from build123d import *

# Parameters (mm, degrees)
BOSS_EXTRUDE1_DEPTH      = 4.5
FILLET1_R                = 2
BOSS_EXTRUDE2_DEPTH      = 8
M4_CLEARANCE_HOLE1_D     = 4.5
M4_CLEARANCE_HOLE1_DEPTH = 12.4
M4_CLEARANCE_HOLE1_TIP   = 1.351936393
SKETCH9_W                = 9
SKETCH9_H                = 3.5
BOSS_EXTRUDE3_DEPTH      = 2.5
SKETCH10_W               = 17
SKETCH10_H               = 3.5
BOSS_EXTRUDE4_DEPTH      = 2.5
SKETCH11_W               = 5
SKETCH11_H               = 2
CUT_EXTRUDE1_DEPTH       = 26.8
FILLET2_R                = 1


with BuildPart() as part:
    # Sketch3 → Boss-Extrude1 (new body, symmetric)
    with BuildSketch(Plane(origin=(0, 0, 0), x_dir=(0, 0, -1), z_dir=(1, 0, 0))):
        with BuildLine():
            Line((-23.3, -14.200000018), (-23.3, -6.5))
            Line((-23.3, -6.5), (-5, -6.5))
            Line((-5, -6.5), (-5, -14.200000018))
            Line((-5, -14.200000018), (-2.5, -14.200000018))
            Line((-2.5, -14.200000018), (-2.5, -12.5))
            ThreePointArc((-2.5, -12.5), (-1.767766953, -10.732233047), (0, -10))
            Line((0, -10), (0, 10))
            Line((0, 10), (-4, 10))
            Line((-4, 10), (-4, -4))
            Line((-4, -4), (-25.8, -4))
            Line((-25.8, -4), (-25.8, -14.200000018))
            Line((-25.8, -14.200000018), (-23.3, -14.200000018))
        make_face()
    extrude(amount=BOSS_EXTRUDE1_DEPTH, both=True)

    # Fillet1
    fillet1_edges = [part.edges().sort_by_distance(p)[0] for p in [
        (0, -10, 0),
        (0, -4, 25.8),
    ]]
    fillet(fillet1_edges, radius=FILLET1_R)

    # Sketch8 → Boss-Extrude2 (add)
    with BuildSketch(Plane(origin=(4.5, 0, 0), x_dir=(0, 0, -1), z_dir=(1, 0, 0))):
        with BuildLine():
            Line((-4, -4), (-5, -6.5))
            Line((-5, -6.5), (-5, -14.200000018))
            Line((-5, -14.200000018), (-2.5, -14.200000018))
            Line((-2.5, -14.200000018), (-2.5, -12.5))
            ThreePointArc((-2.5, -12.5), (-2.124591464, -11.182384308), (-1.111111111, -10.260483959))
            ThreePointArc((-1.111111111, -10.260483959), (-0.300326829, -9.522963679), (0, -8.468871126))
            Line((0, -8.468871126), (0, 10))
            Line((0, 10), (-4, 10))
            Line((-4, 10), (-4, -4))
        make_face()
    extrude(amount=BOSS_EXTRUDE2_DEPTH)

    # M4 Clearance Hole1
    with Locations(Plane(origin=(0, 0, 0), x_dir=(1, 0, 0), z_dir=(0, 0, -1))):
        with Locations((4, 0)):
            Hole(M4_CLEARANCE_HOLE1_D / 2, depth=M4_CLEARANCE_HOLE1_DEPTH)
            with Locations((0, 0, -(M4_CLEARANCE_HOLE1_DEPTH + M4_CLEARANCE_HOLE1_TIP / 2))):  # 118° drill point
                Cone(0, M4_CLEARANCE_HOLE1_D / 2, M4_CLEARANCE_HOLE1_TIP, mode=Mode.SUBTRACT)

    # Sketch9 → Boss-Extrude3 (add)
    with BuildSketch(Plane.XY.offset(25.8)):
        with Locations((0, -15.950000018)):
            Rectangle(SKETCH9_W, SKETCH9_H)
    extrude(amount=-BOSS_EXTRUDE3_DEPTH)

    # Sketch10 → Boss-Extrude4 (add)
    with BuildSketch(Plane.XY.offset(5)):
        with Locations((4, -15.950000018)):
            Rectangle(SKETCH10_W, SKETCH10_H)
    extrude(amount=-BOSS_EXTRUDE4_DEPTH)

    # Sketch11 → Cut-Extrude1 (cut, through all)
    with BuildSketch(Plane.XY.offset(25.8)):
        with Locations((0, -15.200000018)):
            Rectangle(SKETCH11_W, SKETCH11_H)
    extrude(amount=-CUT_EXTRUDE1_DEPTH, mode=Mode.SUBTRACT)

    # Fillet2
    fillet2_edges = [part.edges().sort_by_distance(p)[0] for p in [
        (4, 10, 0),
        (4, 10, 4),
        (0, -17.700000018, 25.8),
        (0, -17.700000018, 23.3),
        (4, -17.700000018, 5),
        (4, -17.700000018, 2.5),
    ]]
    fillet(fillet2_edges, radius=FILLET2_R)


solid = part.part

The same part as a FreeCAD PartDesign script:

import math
import FreeCAD as App
import Part
import Sketcher
Q = App.Units.Quantity


def edges_at(feature, points):
    """Names of the edges that pass closest to the given points."""
    edges = feature.Shape.Edges
    near = lambda p: min(range(len(edges)), key=lambda i: edges[i].distToShape(Part.Vertex(*p))[0])
    return sorted({f"Edge{near(p) + 1}" for p in points})

doc = App.newDocument("Part")
params = doc.addObject("Spreadsheet::Sheet", "Params")
for row, (alias, value) in enumerate([
    ("sketch1_radius", "2.5 mm"),
    ("sketch1_width", "20 mm"),
    ("sketch1_width2", "14 mm"),
    ("sketch1_height", "4 mm"),
    ("sketch1_width3", "7.7 mm"),
    ("pad1_length", "9 mm"),
    ("fillet_radius", "2 mm"),
    ("sketch2_radius", "2 mm"),
    ("sketch2_radius2", "2.5 mm"),
    ("sketch2_width", "14 mm"),
    ("sketch2_height", "4 mm"),
    ("sketch2_width2", "7.7 mm"),
    ("pad2_length", "8 mm"),
    ("sketch3_diameter", "4.5 mm"),
    ("hole_diameter", "4.5 mm"),
    ("hole_depth", "12.4 mm"),
    ("sketch4_width", "9 mm"),
    ("sketch4_height", "3.5 mm"),
    ("pad3_length", "2.5 mm"),
    ("sketch5_width", "17 mm"),
    ("sketch5_height", "3.5 mm"),
    ("pad4_length", "2.5 mm"),
    ("sketch6_width", "5 mm"),
    ("sketch6_height", "2 mm"),
    ("fillet2_radius", "1 mm"),
], start=1):
    params.set(f"A{row}", alias)
    params.set(f"B{row}", "=" + value)
    params.setAlias(f"B{row}", alias)

body = doc.addObject("PartDesign::Body", "Body")

# Sketch on YZ plane
sketch1 = doc.addObject("Sketcher::SketchObject", "Sketch")
body.addObject(sketch1)
sketch1.AttachmentSupport = (doc.YZ_Plane, [""])
sketch1.MapMode = "FlatFace"
sketch1.addGeometry(Part.LineSegment(App.Vector(-14.2, 23.3, 0), App.Vector(-6.5, 23.3, 0)), False)
sketch1.addGeometry(Part.LineSegment(App.Vector(-6.5, 23.3, 0), App.Vector(-6.5, 5, 0)), False)
sketch1.addGeometry(Part.LineSegment(App.Vector(-6.5, 5, 0), App.Vector(-14.2, 5, 0)), False)
sketch1.addGeometry(Part.LineSegment(App.Vector(-14.2, 5, 0), App.Vector(-14.2, 2.5, 0)), False)
sketch1.addGeometry(Part.LineSegment(App.Vector(-14.2, 2.5, 0), App.Vector(-12.5, 2.5, 0)), False)
sketch1.addGeometry(Part.ArcOfCircle(Part.Circle(App.Vector(-12.5, 0, 0), App.Vector(0, 0, 1), 2.5), math.radians(0), math.radians(90)), False)
sketch1.addGeometry(Part.LineSegment(App.Vector(-10, 0, 0), App.Vector(10, 0, 0)), False)
sketch1.addGeometry(Part.LineSegment(App.Vector(10, 0, 0), App.Vector(10, 4, 0)), False)
sketch1.addGeometry(Part.LineSegment(App.Vector(10, 4, 0), App.Vector(-4, 4, 0)), False)
sketch1.addGeometry(Part.LineSegment(App.Vector(-4, 4, 0), App.Vector(-4, 25.8, 0)), False)
sketch1.addGeometry(Part.LineSegment(App.Vector(-4, 25.8, 0), App.Vector(-14.2, 25.8, 0)), False)
sketch1.addGeometry(Part.LineSegment(App.Vector(-14.2, 25.8, 0), App.Vector(-14.2, 23.3, 0)), False)
sketch1.addConstraint(Sketcher.Constraint("Coincident", 0, 2, 1, 1))
sketch1.addConstraint(Sketcher.Constraint("Coincident", 1, 2, 2, 1))
sketch1.addConstraint(Sketcher.Constraint("Coincident", 2, 2, 3, 1))
sketch1.addConstraint(Sketcher.Constraint("Coincident", 3, 2, 4, 1))
sketch1.addConstraint(Sketcher.Constraint("Tangent", 4, 2, 5, 2))
sketch1.addConstraint(Sketcher.Constraint("Coincident", 5, 1, 6, 1))
sketch1.addConstraint(Sketcher.Constraint("Coincident", 6, 2, 7, 1))
sketch1.addConstraint(Sketcher.Constraint("Coincident", 7, 2, 8, 1))
sketch1.addConstraint(Sketcher.Constraint("Coincident", 8, 2, 9, 1))
sketch1.addConstraint(Sketcher.Constraint("Coincident", 9, 2, 10, 1))
sketch1.addConstraint(Sketcher.Constraint("Coincident", 10, 2, 11, 1))
sketch1.addConstraint(Sketcher.Constraint("Coincident", 11, 2, 0, 1))
sketch1.addConstraint(Sketcher.Constraint("Horizontal", 0))
sketch1.addConstraint(Sketcher.Constraint("Vertical", 1))
sketch1.addConstraint(Sketcher.Constraint("Horizontal", 2))
sketch1.addConstraint(Sketcher.Constraint("Vertical", 3))
sketch1.addConstraint(Sketcher.Constraint("Horizontal", 4))
sketch1.addConstraint(Sketcher.Constraint("Horizontal", 6))
sketch1.addConstraint(Sketcher.Constraint("Vertical", 7))
sketch1.addConstraint(Sketcher.Constraint("Horizontal", 8))
sketch1.addConstraint(Sketcher.Constraint("Vertical", 9))
sketch1.addConstraint(Sketcher.Constraint("Horizontal", 10))
sketch1.addConstraint(Sketcher.Constraint("Vertical", 11))
sketch1.addConstraint(Sketcher.Constraint("Symmetric", 5, 1, 6, 2, -1, 1))
sketch1.addConstraint(Sketcher.Constraint("PointOnObject", 5, 3, -1))
sketch1.addConstraint(Sketcher.Constraint("Vertical", 3, 2, 10, 2))
sketch1.addConstraint(Sketcher.Constraint("Equal", 3, 11))
sketch1.addConstraint(Sketcher.Constraint("Radius", 5, Q("2.5 mm")))
sketch1.addConstraint(Sketcher.Constraint("DistanceX", 6, 1, 6, 2, Q("20 mm")))
sketch1.addConstraint(Sketcher.Constraint("DistanceX", 8, 2, 8, 1, Q("14 mm")))
sketch1.addConstraint(Sketcher.Constraint("DistanceY", 7, 1, 7, 2, Q("4 mm")))
sketch1.addConstraint(Sketcher.Constraint("DistanceX", 0, 1, 0, 2, Q("7.7 mm")))
sketch1.addConstraint(Sketcher.Constraint("DistanceX", 4, 1, 4, 2, Q("1.7 mm")))
sketch1.addConstraint(Sketcher.Constraint("DistanceY", 1, 2, 1, 1, Q("18.3 mm")))
sketch1.addConstraint(Sketcher.Constraint("DistanceY", 3, 2, 3, 1, Q("2.5 mm")))
sketch1.setExpression("Constraints[27]", "Params.sketch1_radius")
sketch1.setExpression("Constraints[28]", "Params.sketch1_width")
sketch1.setExpression("Constraints[29]", "Params.sketch1_width2")
sketch1.setExpression("Constraints[30]", "Params.sketch1_height")
sketch1.setExpression("Constraints[31]", "Params.sketch1_width3")
pad1 = doc.addObject("PartDesign::Pad", "Pad")
body.addObject(pad1)
pad1.Profile = sketch1
pad1.setExpression("Length", "Params.pad1_length")
pad1.Midplane = True
doc.recompute()

fillet = doc.addObject("PartDesign::Fillet", "Fillet")
body.addObject(fillet)
fillet.Base = (pad1, edges_at(pad1, [(0, -10, 0), (0, -4, 25.8)]))
fillet.setExpression("Radius", "Params.fillet_radius")

# Sketch on YZ plane
sketch2 = doc.addObject("Sketcher::SketchObject", "Sketch001")
body.addObject(sketch2)
sketch2.AttachmentSupport = (doc.YZ_Plane, [""])
sketch2.MapMode = "FlatFace"
sketch2.AttachmentOffset = App.Placement(App.Vector(0, 0, 4.5), App.Rotation())
sketch2.addGeometry(Part.LineSegment(App.Vector(-4, 4, 0), App.Vector(-6.5, 5, 0)), False)
sketch2.addGeometry(Part.LineSegment(App.Vector(-6.5, 5, 0), App.Vector(-14.2, 5, 0)), False)
sketch2.addGeometry(Part.LineSegment(App.Vector(-14.2, 5, 0), App.Vector(-14.2, 2.5, 0)), False)
sketch2.addGeometry(Part.LineSegment(App.Vector(-14.2, 2.5, 0), App.Vector(-12.5, 2.5, 0)), False)
sketch2.addGeometry(Part.ArcOfCircle(Part.Circle(App.Vector(-12.5, 0, 0), App.Vector(0, 0, 1), 2.5), math.radians(26.3878), math.radians(90)), False)
sketch2.addGeometry(Part.ArcOfCircle(Part.Circle(App.Vector(-8.468871, 2, 0), App.Vector(0, 0, 1), 2), math.radians(-153.6122), math.radians(-90)), False)
sketch2.addGeometry(Part.LineSegment(App.Vector(-8.468871, 0, 0), App.Vector(10, 0, 0)), False)
sketch2.addGeometry(Part.LineSegment(App.Vector(10, 0, 0), App.Vector(10, 4, 0)), False)
sketch2.addGeometry(Part.LineSegment(App.Vector(10, 4, 0), App.Vector(-4, 4, 0)), False)
sketch2.addConstraint(Sketcher.Constraint("Coincident", 0, 2, 1, 1))
sketch2.addConstraint(Sketcher.Constraint("Coincident", 1, 2, 2, 1))
sketch2.addConstraint(Sketcher.Constraint("Coincident", 2, 2, 3, 1))
sketch2.addConstraint(Sketcher.Constraint("Tangent", 3, 2, 4, 2))
sketch2.addConstraint(Sketcher.Constraint("Tangent", 4, 1, 5, 1))
sketch2.addConstraint(Sketcher.Constraint("Tangent", 5, 2, 6, 1))
sketch2.addConstraint(Sketcher.Constraint("Coincident", 6, 2, 7, 1))
sketch2.addConstraint(Sketcher.Constraint("Coincident", 7, 2, 8, 1))
sketch2.addConstraint(Sketcher.Constraint("Coincident", 8, 2, 0, 1))
sketch2.addConstraint(Sketcher.Constraint("Horizontal", 1))
sketch2.addConstraint(Sketcher.Constraint("Vertical", 2))
sketch2.addConstraint(Sketcher.Constraint("Horizontal", 3))
sketch2.addConstraint(Sketcher.Constraint("Horizontal", 6))
sketch2.addConstraint(Sketcher.Constraint("Vertical", 7))
sketch2.addConstraint(Sketcher.Constraint("Horizontal", 8))
sketch2.addConstraint(Sketcher.Constraint("PointOnObject", 4, 3, -1))
sketch2.addConstraint(Sketcher.Constraint("PointOnObject", 5, 2, -1))
sketch2.addConstraint(Sketcher.Constraint("Radius", 5, Q("2 mm")))
sketch2.addConstraint(Sketcher.Constraint("Radius", 4, Q("2.5 mm")))
sketch2.addConstraint(Sketcher.Constraint("DistanceX", 8, 2, 8, 1, Q("14 mm")))
sketch2.addConstraint(Sketcher.Constraint("DistanceY", 7, 1, 7, 2, Q("4 mm")))
sketch2.addConstraint(Sketcher.Constraint("DistanceX", 1, 2, 1, 1, Q("7.7 mm")))
sketch2.addConstraint(Sketcher.Constraint("DistanceX", 3, 1, 3, 2, Q("1.7 mm")))
sketch2.addConstraint(Sketcher.Constraint("DistanceY", 2, 2, 2, 1, Q("2.5 mm")))
sketch2.addConstraint(Sketcher.Constraint("DistanceX", -1, 1, 6, 2, Q("10 mm")))
sketch2.addConstraint(Sketcher.Constraint("DistanceX", 4, 3, -1, 1, Q("12.5 mm")))
sketch2.setExpression("Constraints[17]", "Params.sketch2_radius")
sketch2.setExpression("Constraints[18]", "Params.sketch2_radius2")
sketch2.setExpression("Constraints[19]", "Params.sketch2_width")
sketch2.setExpression("Constraints[20]", "Params.sketch2_height")
sketch2.setExpression("Constraints[21]", "Params.sketch2_width2")
pad2 = doc.addObject("PartDesign::Pad", "Pad001")
body.addObject(pad2)
pad2.Profile = sketch2
pad2.setExpression("Length", "Params.pad2_length")

# Sketch on XY plane
sketch3 = doc.addObject("Sketcher::SketchObject", "Sketch002")
body.addObject(sketch3)
sketch3.AttachmentSupport = (doc.XY_Plane, [""])
sketch3.MapMode = "FlatFace"
sketch3.addGeometry(Part.Circle(App.Vector(4, 0, 0), App.Vector(0, 0, 1), 2.25), False)
sketch3.addConstraint(Sketcher.Constraint("PointOnObject", 0, 3, -1))
sketch3.addConstraint(Sketcher.Constraint("Diameter", 0, Q("4.5 mm")))
sketch3.addConstraint(Sketcher.Constraint("DistanceX", -1, 1, 0, 3, Q("4 mm")))
sketch3.setExpression("Constraints[1]", "Params.sketch3_diameter")
doc.recompute()
hole = doc.addObject("PartDesign::Hole", "Hole")
body.addObject(hole)
hole.Profile = sketch3
hole.ThreadType = "None"
hole.setExpression("Diameter", "Params.hole_diameter")
hole.DepthType = "Dimension"
hole.setExpression("Depth", "Params.hole_depth")
hole.DrillPoint = "Angled"
hole.DrillPointAngle = 118
hole.Reversed = True

# Sketch on XY plane
sketch4 = doc.addObject("Sketcher::SketchObject", "Sketch003")
body.addObject(sketch4)
sketch4.AttachmentSupport = (doc.XY_Plane, [""])
sketch4.MapMode = "FlatFace"
sketch4.AttachmentOffset = App.Placement(App.Vector(0, 0, 25.8), App.Rotation())
sketch4.addGeometry(Part.LineSegment(App.Vector(-4.5, -14.2, 0), App.Vector(-4.5, -17.7, 0)), False)
sketch4.addGeometry(Part.LineSegment(App.Vector(-4.5, -17.7, 0), App.Vector(4.5, -17.7, 0)), False)
sketch4.addGeometry(Part.LineSegment(App.Vector(4.5, -17.7, 0), App.Vector(4.5, -14.2, 0)), False)
sketch4.addGeometry(Part.LineSegment(App.Vector(4.5, -14.2, 0), App.Vector(-4.5, -14.2, 0)), False)
sketch4.addConstraint(Sketcher.Constraint("Coincident", 0, 2, 1, 1))
sketch4.addConstraint(Sketcher.Constraint("Coincident", 1, 2, 2, 1))
sketch4.addConstraint(Sketcher.Constraint("Coincident", 2, 2, 3, 1))
sketch4.addConstraint(Sketcher.Constraint("Coincident", 3, 2, 0, 1))
sketch4.addConstraint(Sketcher.Constraint("Vertical", 0))
sketch4.addConstraint(Sketcher.Constraint("Horizontal", 1))
sketch4.addConstraint(Sketcher.Constraint("Vertical", 2))
sketch4.addConstraint(Sketcher.Constraint("Horizontal", 3))
sketch4.addConstraint(Sketcher.Constraint("DistanceX", 1, 1, 1, 2, Q("9 mm")))
sketch4.addConstraint(Sketcher.Constraint("DistanceY", 0, 2, 0, 1, Q("3.5 mm")))
sketch4.addConstraint(Sketcher.Constraint("DistanceX", 0, 2, -1, 1, Q("4.5 mm")))
sketch4.addConstraint(Sketcher.Constraint("DistanceY", 0, 2, -1, 1, Q("17.7 mm")))
sketch4.setExpression("Constraints[8]", "Params.sketch4_width")
sketch4.setExpression("Constraints[9]", "Params.sketch4_height")
pad3 = doc.addObject("PartDesign::Pad", "Pad002")
body.addObject(pad3)
pad3.Profile = sketch4
pad3.setExpression("Length", "Params.pad3_length")
pad3.Reversed = True

# Sketch on XY plane
sketch5 = doc.addObject("Sketcher::SketchObject", "Sketch004")
body.addObject(sketch5)
sketch5.AttachmentSupport = (doc.XY_Plane, [""])
sketch5.MapMode = "FlatFace"
sketch5.AttachmentOffset = App.Placement(App.Vector(0, 0, 5), App.Rotation())
sketch5.addGeometry(Part.LineSegment(App.Vector(-4.5, -14.2, 0), App.Vector(-4.5, -17.7, 0)), False)
sketch5.addGeometry(Part.LineSegment(App.Vector(-4.5, -17.7, 0), App.Vector(12.5, -17.7, 0)), False)
sketch5.addGeometry(Part.LineSegment(App.Vector(12.5, -17.7, 0), App.Vector(12.5, -14.2, 0)), False)
sketch5.addGeometry(Part.LineSegment(App.Vector(12.5, -14.2, 0), App.Vector(-4.5, -14.2, 0)), False)
sketch5.addConstraint(Sketcher.Constraint("Coincident", 0, 2, 1, 1))
sketch5.addConstraint(Sketcher.Constraint("Coincident", 1, 2, 2, 1))
sketch5.addConstraint(Sketcher.Constraint("Coincident", 2, 2, 3, 1))
sketch5.addConstraint(Sketcher.Constraint("Coincident", 3, 2, 0, 1))
sketch5.addConstraint(Sketcher.Constraint("Vertical", 0))
sketch5.addConstraint(Sketcher.Constraint("Horizontal", 1))
sketch5.addConstraint(Sketcher.Constraint("Vertical", 2))
sketch5.addConstraint(Sketcher.Constraint("Horizontal", 3))
sketch5.addConstraint(Sketcher.Constraint("DistanceX", 1, 1, 1, 2, Q("17 mm")))
sketch5.addConstraint(Sketcher.Constraint("DistanceY", 0, 2, 0, 1, Q("3.5 mm")))
sketch5.addConstraint(Sketcher.Constraint("DistanceX", 0, 2, -1, 1, Q("4.5 mm")))
sketch5.addConstraint(Sketcher.Constraint("DistanceY", 0, 2, -1, 1, Q("17.7 mm")))
sketch5.setExpression("Constraints[8]", "Params.sketch5_width")
sketch5.setExpression("Constraints[9]", "Params.sketch5_height")
pad4 = doc.addObject("PartDesign::Pad", "Pad003")
body.addObject(pad4)
pad4.Profile = sketch5
pad4.setExpression("Length", "Params.pad4_length")
pad4.Reversed = True

# Sketch on XY plane
sketch6 = doc.addObject("Sketcher::SketchObject", "Sketch005")
body.addObject(sketch6)
sketch6.AttachmentSupport = (doc.XY_Plane, [""])
sketch6.MapMode = "FlatFace"
sketch6.AttachmentOffset = App.Placement(App.Vector(0, 0, 25.8), App.Rotation())
sketch6.addGeometry(Part.LineSegment(App.Vector(-2.5, -14.2, 0), App.Vector(-2.5, -16.2, 0)), False)
sketch6.addGeometry(Part.LineSegment(App.Vector(-2.5, -16.2, 0), App.Vector(2.5, -16.2, 0)), False)
sketch6.addGeometry(Part.LineSegment(App.Vector(2.5, -16.2, 0), App.Vector(2.5, -14.2, 0)), False)
sketch6.addGeometry(Part.LineSegment(App.Vector(2.5, -14.2, 0), App.Vector(-2.5, -14.2, 0)), False)
sketch6.addConstraint(Sketcher.Constraint("Coincident", 0, 2, 1, 1))
sketch6.addConstraint(Sketcher.Constraint("Coincident", 1, 2, 2, 1))
sketch6.addConstraint(Sketcher.Constraint("Coincident", 2, 2, 3, 1))
sketch6.addConstraint(Sketcher.Constraint("Coincident", 3, 2, 0, 1))
sketch6.addConstraint(Sketcher.Constraint("Vertical", 0))
sketch6.addConstraint(Sketcher.Constraint("Horizontal", 1))
sketch6.addConstraint(Sketcher.Constraint("Vertical", 2))
sketch6.addConstraint(Sketcher.Constraint("Horizontal", 3))
sketch6.addConstraint(Sketcher.Constraint("DistanceX", 1, 1, 1, 2, Q("5 mm")))
sketch6.addConstraint(Sketcher.Constraint("DistanceY", 0, 2, 0, 1, Q("2 mm")))
sketch6.addConstraint(Sketcher.Constraint("DistanceX", 0, 2, -1, 1, Q("2.5 mm")))
sketch6.addConstraint(Sketcher.Constraint("DistanceY", 0, 2, -1, 1, Q("16.2 mm")))
sketch6.setExpression("Constraints[8]", "Params.sketch6_width")
sketch6.setExpression("Constraints[9]", "Params.sketch6_height")
pocket1 = doc.addObject("PartDesign::Pocket", "Pocket")
body.addObject(pocket1)
pocket1.Profile = sketch6
pocket1.Type = "ThroughAll"
doc.recompute()

fillet2 = doc.addObject("PartDesign::Fillet", "Fillet001")
body.addObject(fillet2)
fillet2.Base = (pocket1, edges_at(pocket1, [
    (4, 10, 0),
    (4, 10, 4),
    (0, -17.7, 25.8),
    (0, -17.7, 23.3),
    (4, -17.7, 5),
    (4, -17.7, 2.5),
]))
fillet2.setExpression("Radius", "Params.fillet2_radius")

doc.recompute()
